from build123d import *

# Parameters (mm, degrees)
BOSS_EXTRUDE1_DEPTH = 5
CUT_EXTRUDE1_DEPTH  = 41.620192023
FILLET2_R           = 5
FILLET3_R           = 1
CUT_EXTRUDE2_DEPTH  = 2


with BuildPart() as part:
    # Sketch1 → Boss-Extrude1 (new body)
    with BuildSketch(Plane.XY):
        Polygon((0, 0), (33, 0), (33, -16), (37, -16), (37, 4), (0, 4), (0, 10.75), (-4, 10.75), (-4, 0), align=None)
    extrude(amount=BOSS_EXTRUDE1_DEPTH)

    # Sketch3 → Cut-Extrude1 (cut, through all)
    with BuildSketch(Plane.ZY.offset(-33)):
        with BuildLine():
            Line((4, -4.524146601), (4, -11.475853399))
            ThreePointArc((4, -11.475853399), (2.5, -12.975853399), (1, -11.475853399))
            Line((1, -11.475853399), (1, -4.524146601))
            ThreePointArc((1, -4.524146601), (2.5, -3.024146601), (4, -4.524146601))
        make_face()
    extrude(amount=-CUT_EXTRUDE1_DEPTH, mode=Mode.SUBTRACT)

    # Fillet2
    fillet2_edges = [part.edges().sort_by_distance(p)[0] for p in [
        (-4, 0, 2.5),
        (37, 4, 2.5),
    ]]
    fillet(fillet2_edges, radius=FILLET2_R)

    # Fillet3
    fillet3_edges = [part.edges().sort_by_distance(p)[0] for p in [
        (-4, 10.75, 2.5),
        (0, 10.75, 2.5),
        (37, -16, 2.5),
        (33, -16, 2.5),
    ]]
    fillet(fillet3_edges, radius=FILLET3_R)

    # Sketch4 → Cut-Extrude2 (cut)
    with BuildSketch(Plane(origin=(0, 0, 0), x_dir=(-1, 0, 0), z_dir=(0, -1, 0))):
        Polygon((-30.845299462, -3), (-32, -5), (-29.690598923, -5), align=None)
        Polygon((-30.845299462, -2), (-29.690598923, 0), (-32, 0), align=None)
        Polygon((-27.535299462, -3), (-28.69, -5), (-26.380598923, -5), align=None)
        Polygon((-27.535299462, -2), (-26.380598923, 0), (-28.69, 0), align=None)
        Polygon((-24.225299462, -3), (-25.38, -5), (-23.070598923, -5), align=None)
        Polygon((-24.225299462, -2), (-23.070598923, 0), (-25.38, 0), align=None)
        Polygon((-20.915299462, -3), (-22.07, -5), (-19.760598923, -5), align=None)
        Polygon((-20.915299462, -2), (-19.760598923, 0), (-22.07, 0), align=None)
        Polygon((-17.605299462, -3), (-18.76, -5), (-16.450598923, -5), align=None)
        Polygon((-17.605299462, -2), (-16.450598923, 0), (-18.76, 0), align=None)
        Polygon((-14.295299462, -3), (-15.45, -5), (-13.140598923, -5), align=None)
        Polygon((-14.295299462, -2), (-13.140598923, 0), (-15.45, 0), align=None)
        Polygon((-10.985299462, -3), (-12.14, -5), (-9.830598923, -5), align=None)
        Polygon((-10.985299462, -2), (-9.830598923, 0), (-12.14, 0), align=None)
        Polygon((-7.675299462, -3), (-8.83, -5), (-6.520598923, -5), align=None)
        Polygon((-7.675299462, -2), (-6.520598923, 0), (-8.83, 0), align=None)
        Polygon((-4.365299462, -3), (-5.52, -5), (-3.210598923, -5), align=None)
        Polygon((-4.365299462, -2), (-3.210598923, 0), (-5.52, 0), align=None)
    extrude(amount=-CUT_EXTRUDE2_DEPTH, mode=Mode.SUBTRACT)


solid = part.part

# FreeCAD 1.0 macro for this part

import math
import FreeCAD as App
import Part
import Sketcher

V = App.Vector
Q = App.Units.Quantity


def edges_at(feature, points):
    """Names of the edges that pass closest to the given points."""
    edges = feature.Shape.Edges
    near = lambda p: min(range(len(edges)), key=lambda i: edges[i].distToShape(Part.Vertex(*p))[0])
    return sorted({f"Edge{near(p) + 1}" for p in points})

doc = App.newDocument("Part")
body = doc.addObject("PartDesign::Body", "Body")

sketch1 = doc.addObject("Sketcher::SketchObject", "Sketch")
body.addObject(sketch1)
sketch1.AttachmentSupport = (doc.XY_Plane, [""])
sketch1.MapMode = "FlatFace"
sketch1.addGeometry([
    Part.LineSegment(V(33, 0, 0), V(33, -16, 0)),
    Part.LineSegment(V(33, -16, 0), V(37, -16, 0)),
    Part.LineSegment(V(37, -16, 0), V(37, 4, 0)),
    Part.LineSegment(V(37, 4, 0), V(0, 4, 0)),
    Part.LineSegment(V(0, 4, 0), V(0, 10.8, 0)),
    Part.LineSegment(V(0, 10.8, 0), V(-4, 10.8, 0)),
    Part.LineSegment(V(-4, 10.8, 0), V(-4, 0, 0)),
    Part.LineSegment(V(-4, 0, 0), V(33, 0, 0)),
], False)
sketch1.addConstraint([
    Sketcher.Constraint("Coincident", 0, 2, 1, 1),
    Sketcher.Constraint("Coincident", 1, 2, 2, 1),
    Sketcher.Constraint("Coincident", 2, 2, 3, 1),
    Sketcher.Constraint("Coincident", 3, 2, 4, 1),
    Sketcher.Constraint("Coincident", 4, 2, 5, 1),
    Sketcher.Constraint("Coincident", 5, 2, 6, 1),
    Sketcher.Constraint("Coincident", 6, 2, 7, 1),
    Sketcher.Constraint("Coincident", 7, 2, 0, 1),
    Sketcher.Constraint("Vertical", 0),
    Sketcher.Constraint("Horizontal", 1),
    Sketcher.Constraint("Vertical", 2),
    Sketcher.Constraint("Horizontal", 3),
    Sketcher.Constraint("Vertical", 4),
    Sketcher.Constraint("Horizontal", 5),
    Sketcher.Constraint("Vertical", 6),
    Sketcher.Constraint("Horizontal", 7),
    Sketcher.Constraint("PointOnObject", 3, 2, -2),
    Sketcher.Constraint("PointOnObject", 6, 2, -1),
    Sketcher.Constraint("Equal", 1, 5),
    Sketcher.Constraint("DistanceX", 1, 1, 1, 2, 4.0),
    Sketcher.Constraint("DistanceX", 3, 2, 3, 1, 37.0),
    Sketcher.Constraint("DistanceY", 0, 2, 0, 1, 16.0),
    Sketcher.Constraint("DistanceY", 2, 1, 2, 2, 20.0),
    Sketcher.Constraint("DistanceY", 4, 1, 4, 2, 6.75),
])
pad1 = doc.addObject("PartDesign::Pad", "Pad")
body.addObject(pad1)
pad1.Profile = sketch1
pad1.Length = 5

sketch2 = doc.addObject("Sketcher::SketchObject", "Sketch001")
body.addObject(sketch2)
sketch2.AttachmentSupport = (doc.YZ_Plane, [""])
sketch2.MapMode = "FlatFace"
sketch2.AttachmentOffset = App.Placement(V(0, 0, 33), App.Rotation())
sketch2.addGeometry([
    Part.LineSegment(V(-11.5, 4, 0), V(-4.5, 4, 0)),
    Part.ArcOfCircle(Part.Circle(V(-4.5, 2.5, 0), V(0, 0, 1), 1.5), math.radians(-90), math.radians(90)),
    Part.LineSegment(V(-4.5, 1, 0), V(-11.5, 1, 0)),
    Part.ArcOfCircle(Part.Circle(V(-11.5, 2.5, 0), V(0, 0, 1), 1.5), math.radians(90), math.radians(270)),
], False)
sketch2.addConstraint([
    Sketcher.Constraint("Tangent", 0, 2, 1, 2),
    Sketcher.Constraint("Tangent", 1, 1, 2, 1),
    Sketcher.Constraint("Tangent", 2, 2, 3, 2),
    Sketcher.Constraint("Tangent", 3, 1, 0, 1),
    Sketcher.Constraint("Horizontal", 0),
    Sketcher.Constraint("Horizontal", 2),
    Sketcher.Constraint("Radius", 1, 1.5),
    Sketcher.Constraint("DistanceY", -1, 1, 0, 2, 4.0),
    Sketcher.Constraint("DistanceX", 0, 1, 0, 2, 6.951707),
    Sketcher.Constraint("DistanceX", 1, 3, -1, 1, 4.524147),
])
pocket1 = doc.addObject("PartDesign::Pocket", "Pocket")
body.addObject(pocket1)
pocket1.Profile = sketch2
pocket1.Type = "ThroughAll"
pocket1.Reversed = True
doc.recompute()

fillet = doc.addObject("PartDesign::Fillet", "Fillet")
body.addObject(fillet)
fillet.Base = (pocket1, edges_at(pocket1, [(-4, 0, 2.5), (37, 4, 2.5)]))
fillet.Radius = 5
doc.recompute()

fillet2 = doc.addObject("PartDesign::Fillet", "Fillet001")
body.addObject(fillet2)
fillet2.Base = (fillet, edges_at(fillet, [
    (-4, 10.75, 2.5),
    (0, 10.75, 2.5),
    (37, -16, 2.5),
    (33, -16, 2.5),
]))
fillet2.Radius = 1

sketch3 = doc.addObject("Sketcher::SketchObject", "Sketch002")
body.addObject(sketch3)
sketch3.AttachmentSupport = (doc.XZ_Plane, [""])
sketch3.MapMode = "FlatFace"
sketch3.addGeometry([
    Part.LineSegment(V(30.8, 3, 0), V(32, 5, 0)),
    Part.LineSegment(V(32, 5, 0), V(29.7, 5, 0)),
    Part.LineSegment(V(29.7, 5, 0), V(30.8, 3, 0)),
    Part.LineSegment(V(30.8, 2, 0), V(29.7, 0, 0)),
    Part.LineSegment(V(29.7, 0, 0), V(32, 0, 0)),
    Part.LineSegment(V(32, 0, 0), V(30.8, 2, 0)),
    Part.LineSegment(V(27.5, 3, 0), V(28.7, 5, 0)),
    Part.LineSegment(V(28.7, 5, 0), V(26.4, 5, 0)),
    Part.LineSegment(V(26.4, 5, 0), V(27.5, 3, 0)),
    Part.LineSegment(V(27.5, 2, 0), V(26.4, 0, 0)),
    Part.LineSegment(V(26.4, 0, 0), V(28.7, 0, 0)),
    Part.LineSegment(V(28.7, 0, 0), V(27.5, 2, 0)),
    Part.LineSegment(V(24.2, 3, 0), V(25.4, 5, 0)),
    Part.LineSegment(V(25.4, 5, 0), V(23.1, 5, 0)),
    Part.LineSegment(V(23.1, 5, 0), V(24.2, 3, 0)),
    Part.LineSegment(V(24.2, 2, 0), V(23.1, 0, 0)),
    Part.LineSegment(V(23.1, 0, 0), V(25.4, 0, 0)),
    Part.LineSegment(V(25.4, 0, 0), V(24.2, 2, 0)),
    Part.LineSegment(V(20.9, 3, 0), V(22.1, 5, 0)),
    Part.LineSegment(V(22.1, 5, 0), V(19.8, 5, 0)),
    Part.LineSegment(V(19.8, 5, 0), V(20.9, 3, 0)),
    Part.LineSegment(V(20.9, 2, 0), V(19.8, 0, 0)),
    Part.LineSegment(V(19.8, 0, 0), V(22.1, 0, 0)),
    Part.LineSegment(V(22.1, 0, 0), V(20.9, 2, 0)),
    Part.LineSegment(V(17.6, 3, 0), V(18.8, 5, 0)),
    Part.LineSegment(V(18.8, 5, 0), V(16.5, 5, 0)),
    Part.LineSegment(V(16.5, 5, 0), V(17.6, 3, 0)),
    Part.LineSegment(V(17.6, 2, 0), V(16.5, 0, 0)),
    Part.LineSegment(V(16.5, 0, 0), V(18.8, 0, 0)),
    Part.LineSegment(V(18.8, 0, 0), V(17.6, 2, 0)),
    Part.LineSegment(V(14.3, 3, 0), V(15.4, 5, 0)),
    Part.LineSegment(V(15.4, 5, 0), V(13.1, 5, 0)),
    Part.LineSegment(V(13.1, 5, 0), V(14.3, 3, 0)),
    Part.LineSegment(V(14.3, 2, 0), V(13.1, 0, 0)),
    Part.LineSegment(V(13.1, 0, 0), V(15.4, 0, 0)),
    Part.LineSegment(V(15.4, 0, 0), V(14.3, 2, 0)),
    Part.LineSegment(V(11, 3, 0), V(12.1, 5, 0)),
    Part.LineSegment(V(12.1, 5, 0), V(9.8, 5, 0)),
    Part.LineSegment(V(9.8, 5, 0), V(11, 3, 0)),
    Part.LineSegment(V(11, 2, 0), V(9.8, 0, 0)),
    Part.LineSegment(V(9.8, 0, 0), V(12.1, 0, 0)),
    Part.LineSegment(V(12.1, 0, 0), V(11, 2, 0)),
    Part.LineSegment(V(7.7, 3, 0), V(8.8, 5, 0)),
    Part.LineSegment(V(8.8, 5, 0), V(6.5, 5, 0)),
    Part.LineSegment(V(6.5, 5, 0), V(7.7, 3, 0)),
    Part.LineSegment(V(7.7, 2, 0), V(6.5, 0, 0)),
    Part.LineSegment(V(6.5, 0, 0), V(8.8, 0, 0)),
    Part.LineSegment(V(8.8, 0, 0), V(7.7, 2, 0)),
    Part.LineSegment(V(4.4, 3, 0), V(5.5, 5, 0)),
    Part.LineSegment(V(5.5, 5, 0), V(3.2, 5, 0)),
    Part.LineSegment(V(3.2, 5, 0), V(4.4, 3, 0)),
    Part.LineSegment(V(4.4, 2, 0), V(3.2, 0, 0)),
    Part.LineSegment(V(3.2, 0, 0), V(5.5, 0, 0)),
    Part.LineSegment(V(5.5, 0, 0), V(4.4, 2, 0)),
], False)
sketch3.addConstraint([
    Sketcher.Constraint("Coincident", 0, 2, 1, 1),
    Sketcher.Constraint("Coincident", 1, 2, 2, 1),
    Sketcher.Constraint("Coincident", 2, 2, 0, 1),
    Sketcher.Constraint("Coincident", 3, 2, 4, 1),
    Sketcher.Constraint("Coincident", 4, 2, 5, 1),
    Sketcher.Constraint("Coincident", 5, 2, 3, 1),
    Sketcher.Constraint("Coincident", 6, 2, 7, 1),
    Sketcher.Constraint("Coincident", 7, 2, 8, 1),
    Sketcher.Constraint("Coincident", 8, 2, 6, 1),
    Sketcher.Constraint("Coincident", 9, 2, 10, 1),
    Sketcher.Constraint("Coincident", 10, 2, 11, 1),
    Sketcher.Constraint("Coincident", 11, 2, 9, 1),
    Sketcher.Constraint("Coincident", 12, 2, 13, 1),
    Sketcher.Constraint("Coincident", 13, 2, 14, 1),
    Sketcher.Constraint("Coincident", 14, 2, 12, 1),
    Sketcher.Constraint("Coincident", 15, 2, 16, 1),
    Sketcher.Constraint("Coincident", 16, 2, 17, 1),
    Sketcher.Constraint("Coincident", 17, 2, 15, 1),
    Sketcher.Constraint("Coincident", 18, 2, 19, 1),
    Sketcher.Constraint("Coincident", 19, 2, 20, 1),
    Sketcher.Constraint("Coincident", 20, 2, 18, 1),
    Sketcher.Constraint("Coincident", 21, 2, 22, 1),
    Sketcher.Constraint("Coincident", 22, 2, 23, 1),
    Sketcher.Constraint("Coincident", 23, 2, 21, 1),
    Sketcher.Constraint("Coincident", 24, 2, 25, 1),
    Sketcher.Constraint("Coincident", 25, 2, 26, 1),
    Sketcher.Constraint("Coincident", 26, 2, 24, 1),
    Sketcher.Constraint("Coincident", 27, 2, 28, 1),
    Sketcher.Constraint("Coincident", 28, 2, 29, 1),
    Sketcher.Constraint("Coincident", 29, 2, 27, 1),
    Sketcher.Constraint("Coincident", 30, 2, 31, 1),
    Sketcher.Constraint("Coincident", 31, 2, 32, 1),
    Sketcher.Constraint("Coincident", 32, 2, 30, 1),
    Sketcher.Constraint("Coincident", 33, 2, 34, 1),
    Sketcher.Constraint("Coincident", 34, 2, 35, 1),
    Sketcher.Constraint("Coincident", 35, 2, 33, 1),
    Sketcher.Constraint("Coincident", 36, 2, 37, 1),
    Sketcher.Constraint("Coincident", 37, 2, 38, 1),
    Sketcher.Constraint("Coincident", 38, 2, 36, 1),
    Sketcher.Constraint("Coincident", 39, 2, 40, 1),
    Sketcher.Constraint("Coincident", 40, 2, 41, 1),
    Sketcher.Constraint("Coincident", 41, 2, 39, 1),
    Sketcher.Constraint("Coincident", 42, 2, 43, 1),
    Sketcher.Constraint("Coincident", 43, 2, 44, 1),
    Sketcher.Constraint("Coincident", 44, 2, 42, 1),
    Sketcher.Constraint("Coincident", 45, 2, 46, 1),
    Sketcher.Constraint("Coincident", 46, 2, 47, 1),
    Sketcher.Constraint("Coincident", 47, 2, 45, 1),
    Sketcher.Constraint("Coincident", 48, 2, 49, 1),
    Sketcher.Constraint("Coincident", 49, 2, 50, 1),
    Sketcher.Constraint("Coincident", 50, 2, 48, 1),
    Sketcher.Constraint("Coincident", 51, 2, 52, 1),
    Sketcher.Constraint("Coincident", 52, 2, 53, 1),
    Sketcher.Constraint("Coincident", 53, 2, 51, 1),
    Sketcher.Constraint("Horizontal", 1),
    Sketcher.Constraint("Horizontal", 4),
    Sketcher.Constraint("Horizontal", 7),
    Sketcher.Constraint("Horizontal", 10),
    Sketcher.Constraint("Horizontal", 13),
    Sketcher.Constraint("Horizontal", 16),
    Sketcher.Constraint("Horizontal", 19),
    Sketcher.Constraint("Horizontal", 22),
    Sketcher.Constraint("Horizontal", 25),
    Sketcher.Constraint("Horizontal", 28),
    Sketcher.Constraint("Horizontal", 31),
    Sketcher.Constraint("Horizontal", 34),
    Sketcher.Constraint("Horizontal", 37),
    Sketcher.Constraint("Horizontal", 40),
    Sketcher.Constraint("Horizontal", 43),
    Sketcher.Constraint("Horizontal", 46),
    Sketcher.Constraint("Horizontal", 49),
    Sketcher.Constraint("Horizontal", 52),
    Sketcher.Constraint("PointOnObject", 3, 2, -1),
    Sketcher.Constraint("PointOnObject", 9, 2, -1),
    Sketcher.Constraint("PointOnObject", 15, 2, -1),
    Sketcher.Constraint("PointOnObject", 21, 2, -1),
    Sketcher.Constraint("PointOnObject", 27, 2, -1),
    Sketcher.Constraint("PointOnObject", 33, 2, -1),
    Sketcher.Constraint("PointOnObject", 39, 2, -1),
    Sketcher.Constraint("PointOnObject", 45, 2, -1),
    Sketcher.Constraint("PointOnObject", 51, 2, -1),
    Sketcher.Constraint("Parallel", 0, 3),
    Sketcher.Constraint("Parallel", 2, 5),
    Sketcher.Constraint("Parallel", 3, 6),
    Sketcher.Constraint("Parallel", 5, 8),
    Sketcher.Constraint("Parallel", 6, 9),
    Sketcher.Constraint("Parallel", 8, 11),
    Sketcher.Constraint("Parallel", 9, 12),
    Sketcher.Constraint("Parallel", 11, 14),
    Sketcher.Constraint("Parallel", 12, 15),
    Sketcher.Constraint("Parallel", 14, 17),
    Sketcher.Constraint("Parallel", 15, 18),
    Sketcher.Constraint("Parallel", 17, 20),
    Sketcher.Constraint("Parallel", 18, 21),
    Sketcher.Constraint("Parallel", 20, 23),
    Sketcher.Constraint("Parallel", 21, 24),
    Sketcher.Constraint("Parallel", 23, 26),
    Sketcher.Constraint("Parallel", 24, 27),
    Sketcher.Constraint("Parallel", 26, 29),
    Sketcher.Constraint("Parallel", 27, 30),
    Sketcher.Constraint("Parallel", 29, 32),
    Sketcher.Constraint("Parallel", 30, 33),
    Sketcher.Constraint("Parallel", 32, 35),
    Sketcher.Constraint("Parallel", 33, 36),
    Sketcher.Constraint("Parallel", 35, 38),
    Sketcher.Constraint("Parallel", 36, 39),
    Sketcher.Constraint("Parallel", 38, 41),
    Sketcher.Constraint("Parallel", 39, 42),
    Sketcher.Constraint("Parallel", 41, 44),
    Sketcher.Constraint("Parallel", 42, 45),
    Sketcher.Constraint("Parallel", 44, 47),
    Sketcher.Constraint("Parallel", 45, 48),
    Sketcher.Constraint("Parallel", 47, 50),
    Sketcher.Constraint("Parallel", 48, 51),
    Sketcher.Constraint("Parallel", 50, 53),
    Sketcher.Constraint("Horizontal", 1, 2, 6, 2),
    Sketcher.Constraint("Horizontal", 2, 2, 8, 2),
    Sketcher.Constraint("Horizontal", 5, 2, 11, 2),
    Sketcher.Constraint("Horizontal", 7, 2, 12, 2),
    Sketcher.Constraint("Horizontal", 8, 2, 14, 2),
    Sketcher.Constraint("Horizontal", 11, 2, 17, 2),
    Sketcher.Constraint("Horizontal", 13, 2, 18, 2),
    Sketcher.Constraint("Horizontal", 14, 2, 20, 2),
    Sketcher.Constraint("Horizontal", 17, 2, 23, 2),
    Sketcher.Constraint("Horizontal", 19, 2, 24, 2),
    Sketcher.Constraint("Horizontal", 20, 2, 26, 2),
    Sketcher.Constraint("Horizontal", 23, 2, 29, 2),
    Sketcher.Constraint("Horizontal", 25, 2, 30, 2),
    Sketcher.Constraint("Horizontal", 26, 2, 32, 2),
    Sketcher.Constraint("Horizontal", 29, 2, 35, 2),
    Sketcher.Constraint("Horizontal", 31, 2, 36, 2),
    Sketcher.Constraint("Horizontal", 32, 2, 38, 2),
    Sketcher.Constraint("Horizontal", 35, 2, 41, 2),
    Sketcher.Constraint("Horizontal", 37, 2, 42, 2),
    Sketcher.Constraint("Horizontal", 38, 2, 44, 2),
    Sketcher.Constraint("Horizontal", 41, 2, 47, 2),
    Sketcher.Constraint("Horizontal", 43, 2, 48, 2),
    Sketcher.Constraint("Horizontal", 44, 2, 50, 2),
    Sketcher.Constraint("Horizontal", 47, 2, 53, 2),
    Sketcher.Constraint("Vertical", 1, 2, 3, 2),
    Sketcher.Constraint("Vertical", 0, 2, 4, 2),
    Sketcher.Constraint("Vertical", 2, 2, 5, 2),
    Sketcher.Constraint("Vertical", 7, 2, 9, 2),
    Sketcher.Constraint("Vertical", 13, 2, 15, 2),
    Sketcher.Constraint("Vertical", 19, 2, 21, 2),
    Sketcher.Constraint("Vertical", 25, 2, 27, 2),
    Sketcher.Constraint("Vertical", 31, 2, 33, 2),
    Sketcher.Constraint("Vertical", 37, 2, 39, 2),
    Sketcher.Constraint("Vertical", 43, 2, 45, 2),
    Sketcher.Constraint("Vertical", 49, 2, 51, 2),
    Sketcher.Constraint("Angle", 0, Q("60 deg")),
    Sketcher.Constraint("DistanceX", -1, 1, 0, 2, 32.0),
    Sketcher.Constraint("DistanceY", -1, 1, 0, 2, 5.0),
    Sketcher.Constraint("DistanceY", -1, 1, 2, 2, 3.0),
    Sketcher.Constraint("DistanceX", -1, 1, 6, 2, 28.69),
    Sketcher.Constraint("DistanceX", -1, 1, 12, 2, 25.38),
    Sketcher.Constraint("DistanceX", -1, 1, 18, 2, 22.07),
    Sketcher.Constraint("DistanceX", -1, 1, 24, 2, 18.76),
    Sketcher.Constraint("DistanceX", -1, 1, 30, 2, 15.45),
    Sketcher.Constraint("DistanceX", -1, 1, 36, 2, 12.14),
    Sketcher.Constraint("DistanceX", -1, 1, 42, 2, 8.83),
    Sketcher.Constraint("DistanceX", -1, 1, 48, 2, 5.52),
])
pocket2 = doc.addObject("PartDesign::Pocket", "Pocket001")
body.addObject(pocket2)
pocket2.Profile = sketch3
pocket2.Length = 2

doc.recompute()
